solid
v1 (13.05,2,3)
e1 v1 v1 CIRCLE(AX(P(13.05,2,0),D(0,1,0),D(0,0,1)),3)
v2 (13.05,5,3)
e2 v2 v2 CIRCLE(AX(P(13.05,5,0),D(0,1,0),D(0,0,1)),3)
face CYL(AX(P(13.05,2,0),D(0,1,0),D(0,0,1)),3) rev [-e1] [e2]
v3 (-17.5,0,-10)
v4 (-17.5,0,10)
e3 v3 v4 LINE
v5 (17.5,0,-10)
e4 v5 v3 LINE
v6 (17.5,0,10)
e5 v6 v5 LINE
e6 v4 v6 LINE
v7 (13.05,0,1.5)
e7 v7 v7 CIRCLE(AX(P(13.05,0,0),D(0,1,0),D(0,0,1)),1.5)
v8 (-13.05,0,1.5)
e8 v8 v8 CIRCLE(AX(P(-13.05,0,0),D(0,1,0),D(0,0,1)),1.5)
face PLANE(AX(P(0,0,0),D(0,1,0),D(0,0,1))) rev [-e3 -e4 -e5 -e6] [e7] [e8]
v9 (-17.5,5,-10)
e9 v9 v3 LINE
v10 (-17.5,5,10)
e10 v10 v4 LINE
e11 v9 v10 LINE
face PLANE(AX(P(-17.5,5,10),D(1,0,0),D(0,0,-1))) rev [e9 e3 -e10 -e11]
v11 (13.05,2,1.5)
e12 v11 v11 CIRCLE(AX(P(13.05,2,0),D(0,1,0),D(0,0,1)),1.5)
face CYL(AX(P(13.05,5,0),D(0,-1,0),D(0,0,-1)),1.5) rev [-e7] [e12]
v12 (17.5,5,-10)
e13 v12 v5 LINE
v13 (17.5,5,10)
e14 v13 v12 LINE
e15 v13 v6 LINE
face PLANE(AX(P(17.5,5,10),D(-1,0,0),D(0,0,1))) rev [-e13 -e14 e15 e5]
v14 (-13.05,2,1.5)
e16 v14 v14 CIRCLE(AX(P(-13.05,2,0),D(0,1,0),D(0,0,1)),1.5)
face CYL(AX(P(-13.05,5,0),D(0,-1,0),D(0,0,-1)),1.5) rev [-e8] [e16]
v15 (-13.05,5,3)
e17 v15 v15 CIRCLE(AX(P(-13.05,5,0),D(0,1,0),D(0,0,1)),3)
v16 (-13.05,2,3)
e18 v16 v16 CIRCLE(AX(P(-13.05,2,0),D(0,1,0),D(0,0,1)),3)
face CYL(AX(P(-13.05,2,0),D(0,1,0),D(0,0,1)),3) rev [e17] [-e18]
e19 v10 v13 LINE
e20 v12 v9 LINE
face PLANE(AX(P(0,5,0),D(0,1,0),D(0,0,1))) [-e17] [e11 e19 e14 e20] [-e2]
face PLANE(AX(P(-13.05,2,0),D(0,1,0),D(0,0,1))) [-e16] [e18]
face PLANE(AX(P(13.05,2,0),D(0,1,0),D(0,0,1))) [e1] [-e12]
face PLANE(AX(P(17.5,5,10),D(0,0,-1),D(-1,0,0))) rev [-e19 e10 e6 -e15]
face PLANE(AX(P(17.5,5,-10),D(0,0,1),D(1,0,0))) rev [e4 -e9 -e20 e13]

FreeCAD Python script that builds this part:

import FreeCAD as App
import Part
import Sketcher
from FreeCAD import Vector
Q = App.Units.Quantity


def add_polygon(sketch, points):
    """Adds a closed chain of lines whose ends are joined by coincident constraints."""
    first, n = sketch.GeometryCount, len(points)
    for a, b in zip(points, points[1:] + points[:1]):
        sketch.addGeometry(Part.LineSegment(App.Vector(*a, 0), App.Vector(*b, 0)), False)
    for i in range(n):
        sketch.addConstraint(Sketcher.Constraint("Coincident", first + i, 2, first + (i + 1) % n, 1))

doc = App.newDocument("Part")
body = doc.addObject("PartDesign::Body", "Body")

# Sketch on XZ plane
sketch1 = body.newObject("Sketcher::SketchObject", "Sketch")
sketch1.AttachmentSupport = (doc.getObject("XZ_Plane"), [""])
sketch1.MapMode = "FlatFace"
add_polygon(sketch1, [(-17.5, -10), (-17.5, 10), (17.5, 10), (17.5, -10)])  # lines 0-3
sketch1.addGeometry(Part.Circle(Vector(-13.1, 0, 0), Vector(0, 0, 1), 1.5), False)  # 4
sketch1.addGeometry(Part.Circle(Vector(13.1, 0, 0), Vector(0, 0, 1), 1.5), False)  # 5
sketch1.addConstraint(Sketcher.Constraint("Vertical", 0))
sketch1.addConstraint(Sketcher.Constraint("Horizontal", 1))
sketch1.addConstraint(Sketcher.Constraint("Vertical", 2))
sketch1.addConstraint(Sketcher.Constraint("Horizontal", 3))
sketch1.addConstraint(Sketcher.Constraint("Equal", 4, 5))
sketch1.addConstraint(Sketcher.Constraint("Symmetric", 4, 3, 5, 3, -1, 1))
sketch1.addConstraint(Sketcher.Constraint("Symmetric", 0, 2, 2, 2, -1, 1))
sketch1.addConstraint(Sketcher.Constraint("PointOnObject", 4, 3, -1))
sketch1.addConstraint(Sketcher.Constraint("Diameter", 4, Q("3 mm")))
sketch1.addConstraint(Sketcher.Constraint("DistanceX", 1, 1, 1, 2, Q("35 mm")))
sketch1.addConstraint(Sketcher.Constraint("DistanceY", 0, 1, 0, 2, Q("20 mm")))
sketch1.addConstraint(Sketcher.Constraint("DistanceX", 4, 3, 5, 3, Q("26.1 mm")))
pad1 = body.newObject("PartDesign::Pad", "Pad")
pad1.Profile = sketch1
pad1.Length = 5
pad1.Reversed = True

# Sketch on XZ plane
sketch2 = body.newObject("Sketcher::SketchObject", "Sketch001")
sketch2.AttachmentSupport = (doc.getObject("XZ_Plane"), [""])
sketch2.MapMode = "FlatFace"
sketch2.AttachmentOffset = App.Placement(Vector(0, 0, -5), App.Rotation())
sketch2.addGeometry(Part.Circle(Vector(-13.1, 0, 0), Vector(0, 0, 1), 3), False)
sketch2.addGeometry(Part.Circle(Vector(13.1, 0, 0), Vector(0, 0, 1), 3), False)
sketch2.addConstraint(Sketcher.Constraint("Equal", 0, 1))
sketch2.addConstraint(Sketcher.Constraint("Symmetric", 0, 3, 1, 3, -1, 1))
sketch2.addConstraint(Sketcher.Constraint("PointOnObject", 0, 3, -1))
sketch2.addConstraint(Sketcher.Constraint("Diameter", 0, Q("6 mm")))
sketch2.addConstraint(Sketcher.Constraint("DistanceX", 0, 3, 1, 3, Q("26.1 mm")))
pocket1 = body.newObject("PartDesign::Pocket", "Pocket")
pocket1.Profile = sketch2
pocket1.Length = 3
pocket1.Reversed = True

doc.recompute()
